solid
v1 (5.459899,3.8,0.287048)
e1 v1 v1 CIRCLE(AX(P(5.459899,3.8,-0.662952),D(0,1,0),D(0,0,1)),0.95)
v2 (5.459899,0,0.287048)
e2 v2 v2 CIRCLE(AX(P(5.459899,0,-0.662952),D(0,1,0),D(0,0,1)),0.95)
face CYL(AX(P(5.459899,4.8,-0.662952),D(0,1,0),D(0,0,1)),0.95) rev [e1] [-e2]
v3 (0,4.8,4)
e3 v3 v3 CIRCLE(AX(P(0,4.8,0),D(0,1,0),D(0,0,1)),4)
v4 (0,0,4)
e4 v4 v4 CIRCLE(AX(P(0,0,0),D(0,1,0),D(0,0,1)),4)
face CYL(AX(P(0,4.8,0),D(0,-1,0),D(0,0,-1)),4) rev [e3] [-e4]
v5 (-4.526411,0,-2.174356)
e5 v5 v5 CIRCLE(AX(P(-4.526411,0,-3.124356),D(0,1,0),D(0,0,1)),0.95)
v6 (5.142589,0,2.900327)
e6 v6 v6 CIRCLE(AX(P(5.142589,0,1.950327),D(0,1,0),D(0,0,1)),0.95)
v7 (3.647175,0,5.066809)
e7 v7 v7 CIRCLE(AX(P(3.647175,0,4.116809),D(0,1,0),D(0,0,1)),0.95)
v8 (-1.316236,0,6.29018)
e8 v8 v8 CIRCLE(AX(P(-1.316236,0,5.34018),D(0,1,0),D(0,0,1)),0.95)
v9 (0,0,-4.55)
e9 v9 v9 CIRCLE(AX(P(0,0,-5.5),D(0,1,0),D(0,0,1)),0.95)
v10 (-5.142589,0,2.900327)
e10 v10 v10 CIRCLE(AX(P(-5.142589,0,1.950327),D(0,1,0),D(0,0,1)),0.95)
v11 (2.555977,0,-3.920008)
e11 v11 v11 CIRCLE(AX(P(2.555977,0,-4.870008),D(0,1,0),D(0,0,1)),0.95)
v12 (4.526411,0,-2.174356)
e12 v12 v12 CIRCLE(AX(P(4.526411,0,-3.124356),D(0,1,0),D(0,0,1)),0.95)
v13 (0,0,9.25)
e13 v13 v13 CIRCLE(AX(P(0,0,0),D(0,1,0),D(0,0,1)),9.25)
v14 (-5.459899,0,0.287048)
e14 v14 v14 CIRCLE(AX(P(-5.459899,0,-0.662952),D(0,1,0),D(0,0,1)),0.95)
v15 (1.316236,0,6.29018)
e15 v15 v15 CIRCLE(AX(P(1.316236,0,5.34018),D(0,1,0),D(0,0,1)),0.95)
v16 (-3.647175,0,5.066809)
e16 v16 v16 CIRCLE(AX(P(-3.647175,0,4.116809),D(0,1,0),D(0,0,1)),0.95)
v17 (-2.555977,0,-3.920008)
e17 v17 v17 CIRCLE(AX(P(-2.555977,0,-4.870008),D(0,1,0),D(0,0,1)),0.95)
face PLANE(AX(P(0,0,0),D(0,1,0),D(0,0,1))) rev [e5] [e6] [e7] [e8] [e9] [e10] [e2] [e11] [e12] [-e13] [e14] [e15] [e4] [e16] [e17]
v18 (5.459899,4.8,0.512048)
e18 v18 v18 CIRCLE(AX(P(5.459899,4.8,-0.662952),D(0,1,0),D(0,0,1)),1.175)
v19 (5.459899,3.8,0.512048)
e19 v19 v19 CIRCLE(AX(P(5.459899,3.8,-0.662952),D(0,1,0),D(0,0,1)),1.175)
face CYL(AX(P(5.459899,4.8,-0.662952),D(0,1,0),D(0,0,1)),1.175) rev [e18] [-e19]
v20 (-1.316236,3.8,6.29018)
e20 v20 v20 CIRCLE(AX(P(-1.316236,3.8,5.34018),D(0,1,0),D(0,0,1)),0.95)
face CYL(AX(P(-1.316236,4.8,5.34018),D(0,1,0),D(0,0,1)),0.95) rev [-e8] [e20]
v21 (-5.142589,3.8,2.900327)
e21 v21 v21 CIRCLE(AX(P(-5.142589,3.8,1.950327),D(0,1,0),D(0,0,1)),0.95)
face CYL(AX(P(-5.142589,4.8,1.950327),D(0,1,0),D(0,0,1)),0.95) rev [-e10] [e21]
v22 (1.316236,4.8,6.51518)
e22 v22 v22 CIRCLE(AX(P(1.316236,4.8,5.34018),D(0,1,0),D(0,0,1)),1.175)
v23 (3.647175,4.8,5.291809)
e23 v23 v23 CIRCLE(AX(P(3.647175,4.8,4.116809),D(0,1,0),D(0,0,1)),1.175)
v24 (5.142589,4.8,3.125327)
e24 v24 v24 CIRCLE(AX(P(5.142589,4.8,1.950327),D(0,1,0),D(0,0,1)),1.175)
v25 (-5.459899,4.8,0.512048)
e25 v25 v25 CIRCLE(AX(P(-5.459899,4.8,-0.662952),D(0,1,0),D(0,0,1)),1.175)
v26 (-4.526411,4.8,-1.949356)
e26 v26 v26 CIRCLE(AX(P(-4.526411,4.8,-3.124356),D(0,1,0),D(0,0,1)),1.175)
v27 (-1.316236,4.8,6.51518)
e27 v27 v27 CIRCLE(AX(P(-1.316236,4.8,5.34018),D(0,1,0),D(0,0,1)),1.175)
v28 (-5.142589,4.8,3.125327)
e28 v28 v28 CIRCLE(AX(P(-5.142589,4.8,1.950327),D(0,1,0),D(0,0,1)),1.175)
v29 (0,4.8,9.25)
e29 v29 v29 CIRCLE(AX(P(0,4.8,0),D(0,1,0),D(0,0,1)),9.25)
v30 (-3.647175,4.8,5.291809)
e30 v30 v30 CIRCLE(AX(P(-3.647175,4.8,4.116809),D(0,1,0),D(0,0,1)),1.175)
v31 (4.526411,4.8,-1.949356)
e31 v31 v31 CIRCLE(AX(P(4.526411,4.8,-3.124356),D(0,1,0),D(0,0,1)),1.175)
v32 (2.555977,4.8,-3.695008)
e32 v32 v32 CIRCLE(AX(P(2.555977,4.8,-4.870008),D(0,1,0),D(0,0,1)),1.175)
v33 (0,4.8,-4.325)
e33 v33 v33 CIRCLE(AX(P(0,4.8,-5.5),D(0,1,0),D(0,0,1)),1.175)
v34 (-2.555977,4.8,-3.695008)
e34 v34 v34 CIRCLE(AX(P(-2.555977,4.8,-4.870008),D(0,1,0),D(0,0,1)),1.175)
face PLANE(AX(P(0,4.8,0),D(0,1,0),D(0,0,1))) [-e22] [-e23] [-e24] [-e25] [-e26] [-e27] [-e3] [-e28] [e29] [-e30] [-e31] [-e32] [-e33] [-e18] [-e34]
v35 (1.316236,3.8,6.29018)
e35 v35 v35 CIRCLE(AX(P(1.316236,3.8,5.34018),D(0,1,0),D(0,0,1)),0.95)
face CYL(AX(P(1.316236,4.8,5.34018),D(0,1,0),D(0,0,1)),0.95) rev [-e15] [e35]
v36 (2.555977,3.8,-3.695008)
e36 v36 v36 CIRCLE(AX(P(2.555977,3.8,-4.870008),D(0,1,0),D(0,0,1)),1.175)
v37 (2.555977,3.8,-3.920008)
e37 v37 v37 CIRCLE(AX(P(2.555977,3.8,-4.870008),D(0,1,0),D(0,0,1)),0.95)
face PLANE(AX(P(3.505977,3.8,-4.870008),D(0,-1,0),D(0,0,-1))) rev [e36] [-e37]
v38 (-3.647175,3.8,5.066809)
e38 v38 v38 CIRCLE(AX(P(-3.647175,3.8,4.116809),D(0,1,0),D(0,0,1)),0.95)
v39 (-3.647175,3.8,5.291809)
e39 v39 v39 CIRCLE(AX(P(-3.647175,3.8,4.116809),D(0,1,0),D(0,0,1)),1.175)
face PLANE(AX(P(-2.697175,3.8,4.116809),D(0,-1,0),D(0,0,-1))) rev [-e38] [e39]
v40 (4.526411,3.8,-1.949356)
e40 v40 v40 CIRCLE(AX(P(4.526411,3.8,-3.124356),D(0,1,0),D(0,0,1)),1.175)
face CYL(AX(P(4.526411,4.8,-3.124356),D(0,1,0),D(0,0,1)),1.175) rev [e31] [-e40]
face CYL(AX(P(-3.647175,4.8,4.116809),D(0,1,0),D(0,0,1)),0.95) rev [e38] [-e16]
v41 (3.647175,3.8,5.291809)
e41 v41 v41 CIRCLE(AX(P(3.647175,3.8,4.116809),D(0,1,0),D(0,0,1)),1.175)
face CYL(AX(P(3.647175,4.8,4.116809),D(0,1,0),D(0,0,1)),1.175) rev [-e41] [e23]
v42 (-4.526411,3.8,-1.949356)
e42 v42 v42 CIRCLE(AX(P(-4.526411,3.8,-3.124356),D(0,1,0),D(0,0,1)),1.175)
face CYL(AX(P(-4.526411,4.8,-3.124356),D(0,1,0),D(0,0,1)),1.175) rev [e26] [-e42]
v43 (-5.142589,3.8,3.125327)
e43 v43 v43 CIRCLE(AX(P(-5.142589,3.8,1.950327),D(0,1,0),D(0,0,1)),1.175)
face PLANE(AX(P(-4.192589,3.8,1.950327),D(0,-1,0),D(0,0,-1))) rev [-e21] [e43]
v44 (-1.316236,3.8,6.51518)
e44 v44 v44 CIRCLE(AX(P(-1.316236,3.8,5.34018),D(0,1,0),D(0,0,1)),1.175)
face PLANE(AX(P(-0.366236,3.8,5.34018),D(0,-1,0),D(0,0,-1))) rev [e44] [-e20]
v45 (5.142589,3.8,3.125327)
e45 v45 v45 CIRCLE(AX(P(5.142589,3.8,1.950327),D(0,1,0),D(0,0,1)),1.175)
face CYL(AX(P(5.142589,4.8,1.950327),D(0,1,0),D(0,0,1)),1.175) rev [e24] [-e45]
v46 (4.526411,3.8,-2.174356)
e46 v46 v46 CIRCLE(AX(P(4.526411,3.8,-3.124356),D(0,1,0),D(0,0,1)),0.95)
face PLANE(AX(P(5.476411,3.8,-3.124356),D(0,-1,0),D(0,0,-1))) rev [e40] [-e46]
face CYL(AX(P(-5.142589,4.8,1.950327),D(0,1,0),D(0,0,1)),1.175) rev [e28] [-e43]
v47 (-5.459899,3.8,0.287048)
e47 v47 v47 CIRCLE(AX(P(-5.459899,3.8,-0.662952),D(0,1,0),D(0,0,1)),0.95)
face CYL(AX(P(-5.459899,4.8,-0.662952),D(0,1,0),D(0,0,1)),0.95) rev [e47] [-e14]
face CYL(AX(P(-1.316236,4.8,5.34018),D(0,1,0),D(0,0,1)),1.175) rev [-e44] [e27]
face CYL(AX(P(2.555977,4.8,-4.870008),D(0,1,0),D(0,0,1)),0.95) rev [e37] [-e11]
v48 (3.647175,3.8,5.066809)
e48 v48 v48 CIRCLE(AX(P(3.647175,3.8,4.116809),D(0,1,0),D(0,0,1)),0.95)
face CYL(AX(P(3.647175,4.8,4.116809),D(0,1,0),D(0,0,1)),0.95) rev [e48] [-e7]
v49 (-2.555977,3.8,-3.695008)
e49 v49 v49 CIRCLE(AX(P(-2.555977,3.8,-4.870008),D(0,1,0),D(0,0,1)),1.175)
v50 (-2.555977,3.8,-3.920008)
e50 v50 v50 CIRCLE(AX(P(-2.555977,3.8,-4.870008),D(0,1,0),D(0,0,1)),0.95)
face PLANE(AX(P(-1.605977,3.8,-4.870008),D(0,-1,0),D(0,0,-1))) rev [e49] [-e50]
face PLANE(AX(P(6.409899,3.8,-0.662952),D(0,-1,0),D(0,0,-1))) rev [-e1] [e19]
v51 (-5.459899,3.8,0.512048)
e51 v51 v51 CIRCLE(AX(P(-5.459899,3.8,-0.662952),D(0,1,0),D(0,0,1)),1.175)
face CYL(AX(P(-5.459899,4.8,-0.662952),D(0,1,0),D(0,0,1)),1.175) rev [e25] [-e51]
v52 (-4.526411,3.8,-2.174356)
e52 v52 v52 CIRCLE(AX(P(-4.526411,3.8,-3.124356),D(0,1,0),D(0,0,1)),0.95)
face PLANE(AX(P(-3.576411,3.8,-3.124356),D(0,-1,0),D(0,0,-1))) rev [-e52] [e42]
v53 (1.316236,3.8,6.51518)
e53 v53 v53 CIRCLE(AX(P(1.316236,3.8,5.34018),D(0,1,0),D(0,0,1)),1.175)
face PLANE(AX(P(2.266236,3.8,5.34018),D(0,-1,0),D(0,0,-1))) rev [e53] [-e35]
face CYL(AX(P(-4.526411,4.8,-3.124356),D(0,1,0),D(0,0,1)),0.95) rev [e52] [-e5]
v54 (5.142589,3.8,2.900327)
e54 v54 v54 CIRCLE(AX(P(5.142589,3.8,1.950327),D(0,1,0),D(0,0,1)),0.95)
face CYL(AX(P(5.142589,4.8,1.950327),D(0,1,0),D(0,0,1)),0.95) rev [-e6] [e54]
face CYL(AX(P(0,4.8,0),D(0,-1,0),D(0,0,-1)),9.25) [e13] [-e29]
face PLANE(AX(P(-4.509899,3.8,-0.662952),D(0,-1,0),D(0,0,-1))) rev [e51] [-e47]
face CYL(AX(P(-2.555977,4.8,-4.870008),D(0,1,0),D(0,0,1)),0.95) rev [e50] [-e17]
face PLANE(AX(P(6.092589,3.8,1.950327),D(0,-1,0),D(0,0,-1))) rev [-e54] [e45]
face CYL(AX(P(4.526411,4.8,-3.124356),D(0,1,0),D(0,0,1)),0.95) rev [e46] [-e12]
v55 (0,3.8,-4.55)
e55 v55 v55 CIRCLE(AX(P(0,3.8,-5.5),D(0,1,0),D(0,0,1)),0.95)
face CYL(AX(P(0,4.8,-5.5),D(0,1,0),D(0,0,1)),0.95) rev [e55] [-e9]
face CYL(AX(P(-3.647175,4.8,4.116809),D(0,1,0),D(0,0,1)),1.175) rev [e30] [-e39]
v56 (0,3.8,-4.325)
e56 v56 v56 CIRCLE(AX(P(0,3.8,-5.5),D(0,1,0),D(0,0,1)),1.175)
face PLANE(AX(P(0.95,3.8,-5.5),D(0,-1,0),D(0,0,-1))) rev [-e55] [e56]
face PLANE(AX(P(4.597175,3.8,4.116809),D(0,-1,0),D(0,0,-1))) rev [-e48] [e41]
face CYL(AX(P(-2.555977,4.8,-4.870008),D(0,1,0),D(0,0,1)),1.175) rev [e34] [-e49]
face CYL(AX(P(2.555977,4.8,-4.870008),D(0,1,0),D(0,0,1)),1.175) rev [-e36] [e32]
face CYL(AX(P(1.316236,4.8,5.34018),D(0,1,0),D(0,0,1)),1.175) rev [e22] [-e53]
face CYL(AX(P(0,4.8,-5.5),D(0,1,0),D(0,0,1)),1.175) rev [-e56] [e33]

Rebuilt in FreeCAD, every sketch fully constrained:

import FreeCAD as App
import Part
import Sketcher
Q = App.Units.Quantity

doc = App.newDocument("Part")
body = doc.addObject("PartDesign::Body", "Body")

# Sketch on XZ plane
sketch1 = doc.addObject("Sketcher::SketchObject", "Sketch")
body.addObject(sketch1)
sketch1.AttachmentSupport = (doc.XZ_Plane, [""])
sketch1.MapMode = "FlatFace"
sketch1.addGeometry([
    Part.Circle(App.Vector(0, 0, 0), App.Vector(0, 0, 1), 9.2),
    Part.Circle(App.Vector(0, 0, 0), App.Vector(0, 0, 1), 4),
], False)
sketch1.addConstraint([
    Sketcher.Constraint("Coincident", 0, 3, -1, 1),
    Sketcher.Constraint("Coincident", 1, 3, -1, 1),
    Sketcher.Constraint("Diameter", 1, Q("8 mm")),
    Sketcher.Constraint("Diameter", 0, Q("18.5 mm")),
])
pad1 = doc.addObject("PartDesign::Pad", "Pad")
body.addObject(pad1)
pad1.Profile = sketch1
pad1.Length = 4.8
pad1.Reversed = True

# Sketch on XZ plane
sketch2 = doc.addObject("Sketcher::SketchObject", "Sketch001")
body.addObject(sketch2)
sketch2.AttachmentSupport = (doc.XZ_Plane, [""])
sketch2.MapMode = "FlatFace"
sketch2.AttachmentOffset = App.Placement(App.Vector(0, 0, -4.8), App.Rotation())
sketch2.addGeometry(Part.Circle(App.Vector(0, -5.5, 0), App.Vector(0, 0, 1), 0.9), False)
sketch2.addConstraint([
    Sketcher.Constraint("PointOnObject", 0, 3, -2),
    Sketcher.Constraint("Diameter", 0, Q("1.9 mm")),
    Sketcher.Constraint("DistanceY", 0, 3, -1, 1, Q("5.5 mm")),
])
doc.recompute()
hole = doc.addObject("PartDesign::Hole", "Hole")
body.addObject(hole)
hole.Profile = sketch2
hole.ThreadType = "None"
hole.Diameter = 1.9
hole.DepthType = "Dimension"
hole.Depth = 4.801
hole.DrillPoint = "Flat"
hole.HoleCutType = "Counterbore"
hole.HoleCutDiameter = 2.35
hole.HoleCutDepth = 1
hole.Reversed = True
doc.recompute()

polarpattern = doc.addObject("PartDesign::PolarPattern", "PolarPattern")
body.addObject(polarpattern)
polarpattern.Originals = [hole]
polarpattern.Axis = (doc.Y_Axis, [""])
polarpattern.Angle = 360
polarpattern.Occurrences = 13
body.Tip = polarpattern

doc.recompute()
